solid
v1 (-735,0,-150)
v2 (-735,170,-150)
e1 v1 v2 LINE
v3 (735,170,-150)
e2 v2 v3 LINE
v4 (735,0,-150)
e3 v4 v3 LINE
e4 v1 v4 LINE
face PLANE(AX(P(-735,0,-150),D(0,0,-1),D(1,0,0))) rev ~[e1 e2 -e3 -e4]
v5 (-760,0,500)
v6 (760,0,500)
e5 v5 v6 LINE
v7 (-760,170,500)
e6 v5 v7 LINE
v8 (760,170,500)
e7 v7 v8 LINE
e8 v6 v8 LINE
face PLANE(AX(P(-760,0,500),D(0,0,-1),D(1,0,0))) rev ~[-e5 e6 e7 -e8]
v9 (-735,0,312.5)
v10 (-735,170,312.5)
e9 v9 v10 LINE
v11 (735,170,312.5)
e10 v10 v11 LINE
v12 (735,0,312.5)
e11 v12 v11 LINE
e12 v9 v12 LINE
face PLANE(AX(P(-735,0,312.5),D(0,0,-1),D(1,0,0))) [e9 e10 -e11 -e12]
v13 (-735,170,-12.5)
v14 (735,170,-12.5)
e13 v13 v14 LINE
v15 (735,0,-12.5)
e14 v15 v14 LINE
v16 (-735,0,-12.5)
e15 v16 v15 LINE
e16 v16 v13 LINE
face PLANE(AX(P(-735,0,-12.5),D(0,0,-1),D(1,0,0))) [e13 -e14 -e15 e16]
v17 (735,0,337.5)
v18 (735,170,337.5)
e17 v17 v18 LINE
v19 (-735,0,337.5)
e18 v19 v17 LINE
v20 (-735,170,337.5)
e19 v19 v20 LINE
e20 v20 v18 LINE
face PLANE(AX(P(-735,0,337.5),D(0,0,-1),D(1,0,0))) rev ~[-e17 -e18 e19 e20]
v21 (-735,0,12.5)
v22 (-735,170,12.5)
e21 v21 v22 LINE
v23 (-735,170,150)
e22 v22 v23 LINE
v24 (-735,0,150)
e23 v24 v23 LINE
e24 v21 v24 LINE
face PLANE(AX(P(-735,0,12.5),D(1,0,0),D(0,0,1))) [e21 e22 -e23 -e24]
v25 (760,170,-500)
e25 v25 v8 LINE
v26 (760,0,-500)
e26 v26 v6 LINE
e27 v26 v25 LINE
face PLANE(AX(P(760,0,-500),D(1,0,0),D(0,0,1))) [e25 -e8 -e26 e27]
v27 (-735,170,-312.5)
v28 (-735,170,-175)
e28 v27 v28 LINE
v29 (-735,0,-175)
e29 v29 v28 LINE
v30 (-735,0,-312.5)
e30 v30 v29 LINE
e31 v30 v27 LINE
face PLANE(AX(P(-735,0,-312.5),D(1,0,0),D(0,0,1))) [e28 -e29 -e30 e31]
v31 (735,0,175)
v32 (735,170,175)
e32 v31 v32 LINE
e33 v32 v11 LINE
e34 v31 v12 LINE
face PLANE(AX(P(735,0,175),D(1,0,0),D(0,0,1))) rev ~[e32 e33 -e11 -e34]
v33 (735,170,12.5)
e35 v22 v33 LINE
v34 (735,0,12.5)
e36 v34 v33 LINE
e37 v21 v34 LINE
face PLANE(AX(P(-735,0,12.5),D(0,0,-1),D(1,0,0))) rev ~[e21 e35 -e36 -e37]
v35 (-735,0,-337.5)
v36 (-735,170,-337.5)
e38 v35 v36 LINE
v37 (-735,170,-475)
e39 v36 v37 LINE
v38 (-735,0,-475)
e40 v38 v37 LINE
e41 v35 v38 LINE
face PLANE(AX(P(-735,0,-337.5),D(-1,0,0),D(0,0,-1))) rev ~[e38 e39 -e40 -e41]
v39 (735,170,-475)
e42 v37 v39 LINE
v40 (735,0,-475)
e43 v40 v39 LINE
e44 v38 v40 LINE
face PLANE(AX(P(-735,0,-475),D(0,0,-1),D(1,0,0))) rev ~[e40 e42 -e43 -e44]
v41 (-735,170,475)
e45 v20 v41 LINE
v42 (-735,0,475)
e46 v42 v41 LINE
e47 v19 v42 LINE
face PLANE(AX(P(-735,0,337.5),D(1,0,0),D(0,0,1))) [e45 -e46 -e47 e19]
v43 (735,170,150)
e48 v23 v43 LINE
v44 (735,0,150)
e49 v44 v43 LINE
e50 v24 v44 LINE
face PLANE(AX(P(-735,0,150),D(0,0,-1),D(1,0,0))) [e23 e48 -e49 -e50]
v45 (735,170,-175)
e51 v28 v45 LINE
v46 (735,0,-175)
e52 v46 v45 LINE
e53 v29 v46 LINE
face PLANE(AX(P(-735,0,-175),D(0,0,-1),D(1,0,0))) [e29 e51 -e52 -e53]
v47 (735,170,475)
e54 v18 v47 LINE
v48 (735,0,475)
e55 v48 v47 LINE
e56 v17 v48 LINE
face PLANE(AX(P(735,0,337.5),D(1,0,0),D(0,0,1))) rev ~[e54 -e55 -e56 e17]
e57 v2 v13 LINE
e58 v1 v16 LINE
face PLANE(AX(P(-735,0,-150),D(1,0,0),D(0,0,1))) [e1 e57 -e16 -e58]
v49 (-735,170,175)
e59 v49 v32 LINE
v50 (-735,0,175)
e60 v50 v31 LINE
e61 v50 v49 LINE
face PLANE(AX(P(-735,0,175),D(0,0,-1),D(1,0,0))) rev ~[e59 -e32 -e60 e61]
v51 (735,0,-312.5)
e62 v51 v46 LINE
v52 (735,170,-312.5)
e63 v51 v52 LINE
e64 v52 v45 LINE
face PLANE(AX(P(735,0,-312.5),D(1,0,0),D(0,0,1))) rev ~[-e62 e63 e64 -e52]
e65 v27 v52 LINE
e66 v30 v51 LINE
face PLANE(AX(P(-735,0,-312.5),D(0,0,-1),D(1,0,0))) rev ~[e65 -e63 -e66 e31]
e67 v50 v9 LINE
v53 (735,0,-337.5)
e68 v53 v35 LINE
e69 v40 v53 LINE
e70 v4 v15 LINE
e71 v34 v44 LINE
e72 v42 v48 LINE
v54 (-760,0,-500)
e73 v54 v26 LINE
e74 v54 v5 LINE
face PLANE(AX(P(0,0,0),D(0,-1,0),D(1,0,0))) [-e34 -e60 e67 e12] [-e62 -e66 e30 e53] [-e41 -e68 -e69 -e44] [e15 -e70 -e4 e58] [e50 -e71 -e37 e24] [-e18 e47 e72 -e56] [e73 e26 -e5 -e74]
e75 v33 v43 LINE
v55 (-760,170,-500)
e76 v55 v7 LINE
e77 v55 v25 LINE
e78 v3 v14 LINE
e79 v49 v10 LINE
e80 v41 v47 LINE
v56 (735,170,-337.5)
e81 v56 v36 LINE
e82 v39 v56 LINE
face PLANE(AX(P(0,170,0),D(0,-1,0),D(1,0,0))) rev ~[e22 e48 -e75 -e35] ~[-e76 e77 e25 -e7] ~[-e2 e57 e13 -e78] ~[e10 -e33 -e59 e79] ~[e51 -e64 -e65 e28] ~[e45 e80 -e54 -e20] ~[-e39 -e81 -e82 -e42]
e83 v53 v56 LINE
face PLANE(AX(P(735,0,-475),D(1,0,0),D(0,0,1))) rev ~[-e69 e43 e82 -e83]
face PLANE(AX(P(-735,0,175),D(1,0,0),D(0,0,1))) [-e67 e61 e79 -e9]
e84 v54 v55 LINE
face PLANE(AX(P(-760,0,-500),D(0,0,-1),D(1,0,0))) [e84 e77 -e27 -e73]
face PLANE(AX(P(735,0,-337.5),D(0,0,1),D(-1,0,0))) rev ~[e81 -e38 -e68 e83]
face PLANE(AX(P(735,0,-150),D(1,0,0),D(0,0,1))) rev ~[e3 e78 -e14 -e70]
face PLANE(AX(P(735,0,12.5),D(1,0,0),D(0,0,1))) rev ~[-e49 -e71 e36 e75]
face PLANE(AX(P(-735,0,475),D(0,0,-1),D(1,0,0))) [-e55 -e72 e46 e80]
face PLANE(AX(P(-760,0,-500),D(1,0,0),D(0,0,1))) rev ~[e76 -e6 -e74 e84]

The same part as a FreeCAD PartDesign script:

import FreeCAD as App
import Part
import Sketcher
from FreeCAD import Vector

doc = App.newDocument("Part")
params = doc.addObject("Spreadsheet::Sheet", "Params")
for row, (alias, value) in enumerate([
    ("sketch1_width", "1520 mm"),
    ("sketch1_height", "1000 mm"),
    ("pad1_length", "170 mm"),
    ("sketch2_width", "1470 mm"),
    ("sketch2_height", "137.5 mm"),
], start=1):
    params.set(f"A{row}", alias)
    params.set(f"B{row}", "=" + value)
    params.setAlias(f"B{row}", alias)

body = doc.addObject("PartDesign::Body", "Body")

# Sketch on XZ plane
sketch1 = body.newObject("Sketcher::SketchObject", "Sketch")
sketch1.AttachmentSupport = (doc.getObject("XZ_Plane"), [""])
sketch1.MapMode = "FlatFace"
sketch1.addGeometry([
    Part.LineSegment(Vector(-760, 500, 0), Vector(-760, -500, 0)),
    Part.LineSegment(Vector(-760, -500, 0), Vector(760, -500, 0)),
    Part.LineSegment(Vector(760, -500, 0), Vector(760, 500, 0)),
    Part.LineSegment(Vector(760, 500, 0), Vector(-760, 500, 0)),
], False)
sketch1.addConstraint([
    Sketcher.Constraint("Coincident", 0, 2, 1, 1),
    Sketcher.Constraint("Coincident", 1, 2, 2, 1),
    Sketcher.Constraint("Coincident", 2, 2, 3, 1),
    Sketcher.Constraint("Coincident", 3, 2, 0, 1),
    Sketcher.Constraint("Vertical", 0),
    Sketcher.Constraint("Horizontal", 1),
    Sketcher.Constraint("Vertical", 2),
    Sketcher.Constraint("Horizontal", 3),
    Sketcher.Constraint("Symmetric", 0, 2, 2, 2, -1, 1),
    Sketcher.Constraint("DistanceX", 1, 1, 1, 2, 1520.0),
    Sketcher.Constraint("DistanceY", 0, 2, 0, 1, 1000.0),
])
sketch1.setExpression("Constraints[9]", "Params.sketch1_width")
sketch1.setExpression("Constraints[10]", "Params.sketch1_height")
pad1 = body.newObject("PartDesign::Pad", "Pad")
pad1.Profile = sketch1
pad1.setExpression("Length", "Params.pad1_length")
pad1.Reversed = True

# Sketch on XZ plane
sketch2 = body.newObject("Sketcher::SketchObject", "Sketch001")
sketch2.AttachmentSupport = (doc.getObject("XZ_Plane"), [""])
sketch2.MapMode = "FlatFace"
sketch2.addGeometry([
    Part.LineSegment(Vector(-735, 475, 0), Vector(-735, 338, 0)),  # 0
    Part.LineSegment(Vector(-735, 338, 0), Vector(735, 338, 0)),  # 1
    Part.LineSegment(Vector(735, 338, 0), Vector(735, 475, 0)),  # 2
    Part.LineSegment(Vector(735, 475, 0), Vector(-735, 475, 0)),  # 3
    Part.LineSegment(Vector(-735, 312, 0), Vector(-735, 175, 0)),  # 4
    Part.LineSegment(Vector(-735, 175, 0), Vector(735, 175, 0)),  # 5
    Part.LineSegment(Vector(735, 175, 0), Vector(735, 312, 0)),  # 6
    Part.LineSegment(Vector(735, 312, 0), Vector(-735, 312, 0)),  # 7
    Part.LineSegment(Vector(-735, 150, 0), Vector(-735, 12, 0)),  # 8
    Part.LineSegment(Vector(-735, 12, 0), Vector(735, 12, 0)),  # 9
    Part.LineSegment(Vector(735, 12, 0), Vector(735, 150, 0)),  # 10
    Part.LineSegment(Vector(735, 150, 0), Vector(-735, 150, 0)),  # 11
    Part.LineSegment(Vector(-735, -12, 0), Vector(-735, -150, 0)),  # 12
    Part.LineSegment(Vector(-735, -150, 0), Vector(735, -150, 0)),  # 13
    Part.LineSegment(Vector(735, -150, 0), Vector(735, -12, 0)),  # 14
    Part.LineSegment(Vector(735, -12, 0), Vector(-735, -12, 0)),  # 15
    Part.LineSegment(Vector(-735, -175, 0), Vector(-735, -312, 0)),  # 16
    Part.LineSegment(Vector(-735, -312, 0), Vector(735, -312, 0)),  # 17
    Part.LineSegment(Vector(735, -312, 0), Vector(735, -175, 0)),  # 18
    Part.LineSegment(Vector(735, -175, 0), Vector(-735, -175, 0)),  # 19
    Part.LineSegment(Vector(-735, -338, 0), Vector(-735, -475, 0)),  # 20
    Part.LineSegment(Vector(-735, -475, 0), Vector(735, -475, 0)),  # 21
    Part.LineSegment(Vector(735, -475, 0), Vector(735, -338, 0)),  # 22
    Part.LineSegment(Vector(735, -338, 0), Vector(-735, -338, 0)),  # 23
], False)
sketch2.addConstraint([
    Sketcher.Constraint("Coincident", 0, 2, 1, 1),
    Sketcher.Constraint("Coincident", 1, 2, 2, 1),
    Sketcher.Constraint("Coincident", 2, 2, 3, 1),
    Sketcher.Constraint("Coincident", 3, 2, 0, 1),
    Sketcher.Constraint("Coincident", 4, 2, 5, 1),
    Sketcher.Constraint("Coincident", 5, 2, 6, 1),
    Sketcher.Constraint("Coincident", 6, 2, 7, 1),
    Sketcher.Constraint("Coincident", 7, 2, 4, 1),
    Sketcher.Constraint("Coincident", 8, 2, 9, 1),
    Sketcher.Constraint("Coincident", 9, 2, 10, 1),
    Sketcher.Constraint("Coincident", 10, 2, 11, 1),
    Sketcher.Constraint("Coincident", 11, 2, 8, 1),
    Sketcher.Constraint("Coincident", 12, 2, 13, 1),
    Sketcher.Constraint("Coincident", 13, 2, 14, 1),
    Sketcher.Constraint("Coincident", 14, 2, 15, 1),
    Sketcher.Constraint("Coincident", 15, 2, 12, 1),
    Sketcher.Constraint("Coincident", 16, 2, 17, 1),
    Sketcher.Constraint("Coincident", 17, 2, 18, 1),
    Sketcher.Constraint("Coincident", 18, 2, 19, 1),
    Sketcher.Constraint("Coincident", 19, 2, 16, 1),
    Sketcher.Constraint("Coincident", 20, 2, 21, 1),
    Sketcher.Constraint("Coincident", 21, 2, 22, 1),
    Sketcher.Constraint("Coincident", 22, 2, 23, 1),
    Sketcher.Constraint("Coincident", 23, 2, 20, 1),
    Sketcher.Constraint("Vertical", 0),
    Sketcher.Constraint("Horizontal", 1),
    Sketcher.Constraint("Vertical", 2),
    Sketcher.Constraint("Horizontal", 3),
    Sketcher.Constraint("Vertical", 4),
    Sketcher.Constraint("Horizontal", 5),
    Sketcher.Constraint("Vertical", 6),
    Sketcher.Constraint("Horizontal", 7),
    Sketcher.Constraint("Vertical", 8),
    Sketcher.Constraint("Horizontal", 9),
    Sketcher.Constraint("Vertical", 10),
    Sketcher.Constraint("Horizontal", 11),
    Sketcher.Constraint("Vertical", 12),
    Sketcher.Constraint("Horizontal", 13),
    Sketcher.Constraint("Vertical", 14),
    Sketcher.Constraint("Horizontal", 15),
    Sketcher.Constraint("Vertical", 16),
    Sketcher.Constraint("Horizontal", 17),
    Sketcher.Constraint("Vertical", 18),
    Sketcher.Constraint("Horizontal", 19),
    Sketcher.Constraint("Vertical", 20),
    Sketcher.Constraint("Horizontal", 21),
    Sketcher.Constraint("Vertical", 22),
    Sketcher.Constraint("Horizontal", 23),
    Sketcher.Constraint("Symmetric", 10, 2, 12, 2, -1, 1),
    Sketcher.Constraint("Symmetric", 8, 2, 14, 2, -1, 1),
    Sketcher.Constraint("Symmetric", 6, 2, 16, 2, -1, 1),
    Sketcher.Constraint("Symmetric", 4, 2, 18, 2, -1, 1),
    Sketcher.Constraint("Symmetric", 2, 2, 20, 2, -1, 1),
    Sketcher.Constraint("Symmetric", 0, 2, 22, 2, -1, 1),
    Sketcher.Constraint("Vertical", 3, 2, 4, 2),
    Sketcher.Constraint("Vertical", 2, 2, 5, 2),
    Sketcher.Constraint("Vertical", 7, 2, 8, 2),
    Sketcher.Constraint("Vertical", 6, 2, 9, 2),
    Sketcher.Constraint("Vertical", 11, 2, 12, 2),
    Sketcher.Constraint("Equal", 2, 4),
    Sketcher.Constraint("Equal", 6, 8),
    Sketcher.Constraint("DistanceX", 1, 1, 1, 2, 1470.0),
    Sketcher.Constraint("DistanceY", 0, 2, 0, 1, 137.5),
    Sketcher.Constraint("DistanceY", -1, 1, 2, 2, 475.0),
    Sketcher.Constraint("DistanceY", -1, 1, 4, 2, 175.0),
    Sketcher.Constraint("DistanceY", -1, 1, 10, 2, 150.0),
])
sketch2.setExpression("Constraints[61]", "Params.sketch2_width")
sketch2.setExpression("Constraints[62]", "Params.sketch2_height")
pocket1 = body.newObject("PartDesign::Pocket", "Pocket")
pocket1.Profile = sketch2
pocket1.Type = "ThroughAll"

doc.recompute()
